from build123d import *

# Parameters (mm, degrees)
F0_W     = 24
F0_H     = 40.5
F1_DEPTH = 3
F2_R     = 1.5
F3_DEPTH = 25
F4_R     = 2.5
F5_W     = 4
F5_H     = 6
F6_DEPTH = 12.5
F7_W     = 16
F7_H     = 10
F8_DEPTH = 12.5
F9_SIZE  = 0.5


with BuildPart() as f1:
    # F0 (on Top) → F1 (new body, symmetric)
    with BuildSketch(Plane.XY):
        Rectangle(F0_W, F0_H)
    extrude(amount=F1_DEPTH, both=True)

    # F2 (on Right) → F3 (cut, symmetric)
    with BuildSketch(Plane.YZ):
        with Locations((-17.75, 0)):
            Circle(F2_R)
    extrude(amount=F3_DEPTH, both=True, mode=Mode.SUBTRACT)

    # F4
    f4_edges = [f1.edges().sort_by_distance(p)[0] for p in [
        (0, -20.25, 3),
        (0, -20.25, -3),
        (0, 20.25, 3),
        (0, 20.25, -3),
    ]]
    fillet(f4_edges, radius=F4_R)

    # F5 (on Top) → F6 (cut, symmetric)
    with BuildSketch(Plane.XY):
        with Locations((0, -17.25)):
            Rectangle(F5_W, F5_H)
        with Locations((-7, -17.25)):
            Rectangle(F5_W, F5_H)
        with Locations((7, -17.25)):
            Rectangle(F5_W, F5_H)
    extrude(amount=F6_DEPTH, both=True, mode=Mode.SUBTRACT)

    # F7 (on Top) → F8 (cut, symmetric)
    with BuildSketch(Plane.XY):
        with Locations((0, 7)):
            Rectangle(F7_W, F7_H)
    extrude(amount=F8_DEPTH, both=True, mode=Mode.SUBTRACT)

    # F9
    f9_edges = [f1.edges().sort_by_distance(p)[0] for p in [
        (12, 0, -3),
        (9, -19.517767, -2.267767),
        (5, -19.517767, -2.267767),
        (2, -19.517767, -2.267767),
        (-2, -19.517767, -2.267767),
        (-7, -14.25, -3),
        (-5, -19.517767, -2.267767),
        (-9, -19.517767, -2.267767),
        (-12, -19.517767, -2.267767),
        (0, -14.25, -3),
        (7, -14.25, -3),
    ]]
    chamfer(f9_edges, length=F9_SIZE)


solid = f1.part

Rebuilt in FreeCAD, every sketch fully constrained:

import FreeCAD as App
import Part
import Sketcher
from FreeCAD import Vector
Q = App.Units.Quantity


def edges_at(feature, points):
    """Names of the edges that pass closest to the given points."""
    edges = feature.Shape.Edges
    near = lambda p: min(range(len(edges)), key=lambda i: edges[i].distToShape(Part.Vertex(*p))[0])
    return sorted({f"Edge{near(p) + 1}" for p in points})


def add_polygon(sketch, points):
    """Adds a closed chain of lines whose ends are joined by coincident constraints."""
    first, n = sketch.GeometryCount, len(points)
    for a, b in zip(points, points[1:] + points[:1]):
        sketch.addGeometry(Part.LineSegment(App.Vector(*a, 0), App.Vector(*b, 0)), False)
    for i in range(n):
        sketch.addConstraint(Sketcher.Constraint("Coincident", first + i, 2, first + (i + 1) % n, 1))

doc = App.newDocument("Part")
params = doc.addObject("Spreadsheet::Sheet", "Params")
for row, (alias, value) in enumerate([
    ("sketch1_width", "24 mm"),
    ("sketch1_height", "40.5 mm"),
    ("pad1_length", "6 mm"),
    ("sketch2_diameter", "3 mm"),
    ("pocket1_length", "50 mm"),
    ("fillet_radius", "2.5 mm"),
    ("sketch3_width", "4 mm"),
    ("sketch3_height", "6 mm"),
    ("pocket2_length", "25 mm"),
    ("sketch4_width", "16 mm"),
    ("sketch4_height", "10 mm"),
    ("pocket3_length", "25 mm"),
    ("chamfer_size", "0.5 mm"),
], start=1):
    params.set(f"A{row}", alias)
    params.set(f"B{row}", "=" + value)
    params.setAlias(f"B{row}", alias)

body = doc.addObject("PartDesign::Body", "Body")

# Sketch on XY plane
sketch1 = doc.addObject("Sketcher::SketchObject", "Sketch")
body.addObject(sketch1)
sketch1.AttachmentSupport = (doc.XY_Plane, [""])
sketch1.MapMode = "FlatFace"
add_polygon(sketch1, [(-12, 20), (-12, -20), (12, -20), (12, 20)])  # lines 0-3
sketch1.addConstraint([
    Sketcher.Constraint("Vertical", 0),
    Sketcher.Constraint("Horizontal", 1),
    Sketcher.Constraint("Vertical", 2),
    Sketcher.Constraint("Horizontal", 3),
    Sketcher.Constraint("Symmetric", 0, 2, 2, 2, -1, 1),
    Sketcher.Constraint("DistanceX", 1, 1, 1, 2, Q("24 mm")),
    Sketcher.Constraint("DistanceY", 0, 2, 0, 1, Q("40.5 mm")),
])
sketch1.setExpression("Constraints[9]", "Params.sketch1_width")
sketch1.setExpression("Constraints[10]", "Params.sketch1_height")
pad1 = doc.addObject("PartDesign::Pad", "Pad")
body.addObject(pad1)
pad1.Profile = sketch1
pad1.setExpression("Length", "Params.pad1_length")
pad1.Midplane = True

# Sketch on YZ plane
sketch2 = doc.addObject("Sketcher::SketchObject", "Sketch001")
body.addObject(sketch2)
sketch2.AttachmentSupport = (doc.YZ_Plane, [""])
sketch2.MapMode = "FlatFace"
sketch2.addGeometry(Part.Circle(Vector(-17.8, 0, 0), Vector(0, 0, 1), 1.5), False)
sketch2.addConstraint([
    Sketcher.Constraint("PointOnObject", 0, 3, -1),
    Sketcher.Constraint("Diameter", 0, Q("3 mm")),
    Sketcher.Constraint("DistanceX", 0, 3, -1, 1, Q("17.75 mm")),
])
sketch2.setExpression("Constraints[1]", "Params.sketch2_diameter")
pocket1 = doc.addObject("PartDesign::Pocket", "Pocket")
body.addObject(pocket1)
pocket1.Profile = sketch2
pocket1.setExpression("Length", "Params.pocket1_length")
pocket1.Midplane = True
doc.recompute()

fillet = doc.addObject("PartDesign::Fillet", "Fillet")
body.addObject(fillet)
fillet.Base = (pocket1, edges_at(pocket1, [
    (0, -20.25, 3),
    (0, -20.25, -3),
    (0, 20.25, 3),
    (0, 20.25, -3),
]))
fillet.setExpression("Radius", "Params.fillet_radius")

# Sketch on XY plane
sketch3 = doc.addObject("Sketcher::SketchObject", "Sketch002")
body.addObject(sketch3)
sketch3.AttachmentSupport = (doc.XY_Plane, [""])
sketch3.MapMode = "FlatFace"
add_polygon(sketch3, [(-2, -14.2), (-2, -20.2), (2, -20.2), (2, -14.2)])  # lines 0-3
add_polygon(sketch3, [(-9, -14.2), (-9, -20.2), (-5, -20.2), (-5, -14.2)])  # lines 4-7
add_polygon(sketch3, [(5, -14.2), (5, -20.2), (9, -20.2), (9, -14.2)])  # lines 8-11
sketch3.addConstraint([
    Sketcher.Constraint("Vertical", 0),
    Sketcher.Constraint("Horizontal", 1),
    Sketcher.Constraint("Vertical", 2),
    Sketcher.Constraint("Horizontal", 3),
    Sketcher.Constraint("Vertical", 4),
    Sketcher.Constraint("Horizontal", 5),
    Sketcher.Constraint("Vertical", 6),
    Sketcher.Constraint("Horizontal", 7),
    Sketcher.Constraint("Vertical", 8),
    Sketcher.Constraint("Horizontal", 9),
    Sketcher.Constraint("Vertical", 10),
    Sketcher.Constraint("Horizontal", 11),
    Sketcher.Constraint("Symmetric", 5, 2, 8, 2, -2),
    Sketcher.Constraint("Symmetric", 7, 2, 10, 2, -2),
    Sketcher.Constraint("Horizontal", 1, 2, 4, 2),
    Sketcher.Constraint("Horizontal", 3, 2, 6, 2),
    Sketcher.Constraint("Equal", 3, 5),
    Sketcher.Constraint("DistanceX", 1, 1, 1, 2, Q("4 mm")),
    Sketcher.Constraint("DistanceY", 0, 2, 0, 1, Q("6 mm")),
    Sketcher.Constraint("DistanceX", 0, 2, -1, 1, Q("2 mm")),
    Sketcher.Constraint("DistanceX", 4, 2, -1, 1, Q("9 mm")),
    Sketcher.Constraint("DistanceY", 0, 2, -1, 1, Q("20.25 mm")),
])
sketch3.setExpression("Constraints[29]", "Params.sketch3_width")
sketch3.setExpression("Constraints[30]", "Params.sketch3_height")
pocket2 = doc.addObject("PartDesign::Pocket", "Pocket001")
body.addObject(pocket2)
pocket2.Profile = sketch3
pocket2.setExpression("Length", "Params.pocket2_length")
pocket2.Midplane = True

# Sketch on XY plane
sketch4 = doc.addObject("Sketcher::SketchObject", "Sketch003")
body.addObject(sketch4)
sketch4.AttachmentSupport = (doc.XY_Plane, [""])
sketch4.MapMode = "FlatFace"
add_polygon(sketch4, [(-8, 12), (-8, 2), (8, 2), (8, 12)])  # lines 0-3
sketch4.addConstraint([
    Sketcher.Constraint("Vertical", 0),
    Sketcher.Constraint("Horizontal", 1),
    Sketcher.Constraint("Vertical", 2),
    Sketcher.Constraint("Horizontal", 3),
    Sketcher.Constraint("DistanceX", 1, 1, 1, 2, Q("16 mm")),
    Sketcher.Constraint("DistanceY", 0, 2, 0, 1, Q("10 mm")),
    Sketcher.Constraint("DistanceX", 0, 2, -1, 1, Q("8 mm")),
    Sketcher.Constraint("DistanceY", -1, 1, 0, 2, Q("2 mm")),
])
sketch4.setExpression("Constraints[8]", "Params.sketch4_width")
sketch4.setExpression("Constraints[9]", "Params.sketch4_height")
pocket3 = doc.addObject("PartDesign::Pocket", "Pocket002")
body.addObject(pocket3)
pocket3.Profile = sketch4
pocket3.setExpression("Length", "Params.pocket3_length")
pocket3.Midplane = True
doc.recompute()

chamfer = doc.addObject("PartDesign::Chamfer", "Chamfer")
body.addObject(chamfer)
chamfer.Base = (pocket3, edges_at(pocket3, [
    (12, 0, -3),
    (9, -19.518, -2.268),
    (5, -19.518, -2.268),
    (2, -19.518, -2.268),
    (-2, -19.518, -2.268),
    (-7, -14.25, -3),
    (-5, -19.518, -2.268),
    (-9, -19.518, -2.268),
    (-12, -19.518, -2.268),
    (0, -14.25, -3),
    (7, -14.25, -3),
]))
chamfer.setExpression("Size", "Params.chamfer_size")

doc.recompute()
